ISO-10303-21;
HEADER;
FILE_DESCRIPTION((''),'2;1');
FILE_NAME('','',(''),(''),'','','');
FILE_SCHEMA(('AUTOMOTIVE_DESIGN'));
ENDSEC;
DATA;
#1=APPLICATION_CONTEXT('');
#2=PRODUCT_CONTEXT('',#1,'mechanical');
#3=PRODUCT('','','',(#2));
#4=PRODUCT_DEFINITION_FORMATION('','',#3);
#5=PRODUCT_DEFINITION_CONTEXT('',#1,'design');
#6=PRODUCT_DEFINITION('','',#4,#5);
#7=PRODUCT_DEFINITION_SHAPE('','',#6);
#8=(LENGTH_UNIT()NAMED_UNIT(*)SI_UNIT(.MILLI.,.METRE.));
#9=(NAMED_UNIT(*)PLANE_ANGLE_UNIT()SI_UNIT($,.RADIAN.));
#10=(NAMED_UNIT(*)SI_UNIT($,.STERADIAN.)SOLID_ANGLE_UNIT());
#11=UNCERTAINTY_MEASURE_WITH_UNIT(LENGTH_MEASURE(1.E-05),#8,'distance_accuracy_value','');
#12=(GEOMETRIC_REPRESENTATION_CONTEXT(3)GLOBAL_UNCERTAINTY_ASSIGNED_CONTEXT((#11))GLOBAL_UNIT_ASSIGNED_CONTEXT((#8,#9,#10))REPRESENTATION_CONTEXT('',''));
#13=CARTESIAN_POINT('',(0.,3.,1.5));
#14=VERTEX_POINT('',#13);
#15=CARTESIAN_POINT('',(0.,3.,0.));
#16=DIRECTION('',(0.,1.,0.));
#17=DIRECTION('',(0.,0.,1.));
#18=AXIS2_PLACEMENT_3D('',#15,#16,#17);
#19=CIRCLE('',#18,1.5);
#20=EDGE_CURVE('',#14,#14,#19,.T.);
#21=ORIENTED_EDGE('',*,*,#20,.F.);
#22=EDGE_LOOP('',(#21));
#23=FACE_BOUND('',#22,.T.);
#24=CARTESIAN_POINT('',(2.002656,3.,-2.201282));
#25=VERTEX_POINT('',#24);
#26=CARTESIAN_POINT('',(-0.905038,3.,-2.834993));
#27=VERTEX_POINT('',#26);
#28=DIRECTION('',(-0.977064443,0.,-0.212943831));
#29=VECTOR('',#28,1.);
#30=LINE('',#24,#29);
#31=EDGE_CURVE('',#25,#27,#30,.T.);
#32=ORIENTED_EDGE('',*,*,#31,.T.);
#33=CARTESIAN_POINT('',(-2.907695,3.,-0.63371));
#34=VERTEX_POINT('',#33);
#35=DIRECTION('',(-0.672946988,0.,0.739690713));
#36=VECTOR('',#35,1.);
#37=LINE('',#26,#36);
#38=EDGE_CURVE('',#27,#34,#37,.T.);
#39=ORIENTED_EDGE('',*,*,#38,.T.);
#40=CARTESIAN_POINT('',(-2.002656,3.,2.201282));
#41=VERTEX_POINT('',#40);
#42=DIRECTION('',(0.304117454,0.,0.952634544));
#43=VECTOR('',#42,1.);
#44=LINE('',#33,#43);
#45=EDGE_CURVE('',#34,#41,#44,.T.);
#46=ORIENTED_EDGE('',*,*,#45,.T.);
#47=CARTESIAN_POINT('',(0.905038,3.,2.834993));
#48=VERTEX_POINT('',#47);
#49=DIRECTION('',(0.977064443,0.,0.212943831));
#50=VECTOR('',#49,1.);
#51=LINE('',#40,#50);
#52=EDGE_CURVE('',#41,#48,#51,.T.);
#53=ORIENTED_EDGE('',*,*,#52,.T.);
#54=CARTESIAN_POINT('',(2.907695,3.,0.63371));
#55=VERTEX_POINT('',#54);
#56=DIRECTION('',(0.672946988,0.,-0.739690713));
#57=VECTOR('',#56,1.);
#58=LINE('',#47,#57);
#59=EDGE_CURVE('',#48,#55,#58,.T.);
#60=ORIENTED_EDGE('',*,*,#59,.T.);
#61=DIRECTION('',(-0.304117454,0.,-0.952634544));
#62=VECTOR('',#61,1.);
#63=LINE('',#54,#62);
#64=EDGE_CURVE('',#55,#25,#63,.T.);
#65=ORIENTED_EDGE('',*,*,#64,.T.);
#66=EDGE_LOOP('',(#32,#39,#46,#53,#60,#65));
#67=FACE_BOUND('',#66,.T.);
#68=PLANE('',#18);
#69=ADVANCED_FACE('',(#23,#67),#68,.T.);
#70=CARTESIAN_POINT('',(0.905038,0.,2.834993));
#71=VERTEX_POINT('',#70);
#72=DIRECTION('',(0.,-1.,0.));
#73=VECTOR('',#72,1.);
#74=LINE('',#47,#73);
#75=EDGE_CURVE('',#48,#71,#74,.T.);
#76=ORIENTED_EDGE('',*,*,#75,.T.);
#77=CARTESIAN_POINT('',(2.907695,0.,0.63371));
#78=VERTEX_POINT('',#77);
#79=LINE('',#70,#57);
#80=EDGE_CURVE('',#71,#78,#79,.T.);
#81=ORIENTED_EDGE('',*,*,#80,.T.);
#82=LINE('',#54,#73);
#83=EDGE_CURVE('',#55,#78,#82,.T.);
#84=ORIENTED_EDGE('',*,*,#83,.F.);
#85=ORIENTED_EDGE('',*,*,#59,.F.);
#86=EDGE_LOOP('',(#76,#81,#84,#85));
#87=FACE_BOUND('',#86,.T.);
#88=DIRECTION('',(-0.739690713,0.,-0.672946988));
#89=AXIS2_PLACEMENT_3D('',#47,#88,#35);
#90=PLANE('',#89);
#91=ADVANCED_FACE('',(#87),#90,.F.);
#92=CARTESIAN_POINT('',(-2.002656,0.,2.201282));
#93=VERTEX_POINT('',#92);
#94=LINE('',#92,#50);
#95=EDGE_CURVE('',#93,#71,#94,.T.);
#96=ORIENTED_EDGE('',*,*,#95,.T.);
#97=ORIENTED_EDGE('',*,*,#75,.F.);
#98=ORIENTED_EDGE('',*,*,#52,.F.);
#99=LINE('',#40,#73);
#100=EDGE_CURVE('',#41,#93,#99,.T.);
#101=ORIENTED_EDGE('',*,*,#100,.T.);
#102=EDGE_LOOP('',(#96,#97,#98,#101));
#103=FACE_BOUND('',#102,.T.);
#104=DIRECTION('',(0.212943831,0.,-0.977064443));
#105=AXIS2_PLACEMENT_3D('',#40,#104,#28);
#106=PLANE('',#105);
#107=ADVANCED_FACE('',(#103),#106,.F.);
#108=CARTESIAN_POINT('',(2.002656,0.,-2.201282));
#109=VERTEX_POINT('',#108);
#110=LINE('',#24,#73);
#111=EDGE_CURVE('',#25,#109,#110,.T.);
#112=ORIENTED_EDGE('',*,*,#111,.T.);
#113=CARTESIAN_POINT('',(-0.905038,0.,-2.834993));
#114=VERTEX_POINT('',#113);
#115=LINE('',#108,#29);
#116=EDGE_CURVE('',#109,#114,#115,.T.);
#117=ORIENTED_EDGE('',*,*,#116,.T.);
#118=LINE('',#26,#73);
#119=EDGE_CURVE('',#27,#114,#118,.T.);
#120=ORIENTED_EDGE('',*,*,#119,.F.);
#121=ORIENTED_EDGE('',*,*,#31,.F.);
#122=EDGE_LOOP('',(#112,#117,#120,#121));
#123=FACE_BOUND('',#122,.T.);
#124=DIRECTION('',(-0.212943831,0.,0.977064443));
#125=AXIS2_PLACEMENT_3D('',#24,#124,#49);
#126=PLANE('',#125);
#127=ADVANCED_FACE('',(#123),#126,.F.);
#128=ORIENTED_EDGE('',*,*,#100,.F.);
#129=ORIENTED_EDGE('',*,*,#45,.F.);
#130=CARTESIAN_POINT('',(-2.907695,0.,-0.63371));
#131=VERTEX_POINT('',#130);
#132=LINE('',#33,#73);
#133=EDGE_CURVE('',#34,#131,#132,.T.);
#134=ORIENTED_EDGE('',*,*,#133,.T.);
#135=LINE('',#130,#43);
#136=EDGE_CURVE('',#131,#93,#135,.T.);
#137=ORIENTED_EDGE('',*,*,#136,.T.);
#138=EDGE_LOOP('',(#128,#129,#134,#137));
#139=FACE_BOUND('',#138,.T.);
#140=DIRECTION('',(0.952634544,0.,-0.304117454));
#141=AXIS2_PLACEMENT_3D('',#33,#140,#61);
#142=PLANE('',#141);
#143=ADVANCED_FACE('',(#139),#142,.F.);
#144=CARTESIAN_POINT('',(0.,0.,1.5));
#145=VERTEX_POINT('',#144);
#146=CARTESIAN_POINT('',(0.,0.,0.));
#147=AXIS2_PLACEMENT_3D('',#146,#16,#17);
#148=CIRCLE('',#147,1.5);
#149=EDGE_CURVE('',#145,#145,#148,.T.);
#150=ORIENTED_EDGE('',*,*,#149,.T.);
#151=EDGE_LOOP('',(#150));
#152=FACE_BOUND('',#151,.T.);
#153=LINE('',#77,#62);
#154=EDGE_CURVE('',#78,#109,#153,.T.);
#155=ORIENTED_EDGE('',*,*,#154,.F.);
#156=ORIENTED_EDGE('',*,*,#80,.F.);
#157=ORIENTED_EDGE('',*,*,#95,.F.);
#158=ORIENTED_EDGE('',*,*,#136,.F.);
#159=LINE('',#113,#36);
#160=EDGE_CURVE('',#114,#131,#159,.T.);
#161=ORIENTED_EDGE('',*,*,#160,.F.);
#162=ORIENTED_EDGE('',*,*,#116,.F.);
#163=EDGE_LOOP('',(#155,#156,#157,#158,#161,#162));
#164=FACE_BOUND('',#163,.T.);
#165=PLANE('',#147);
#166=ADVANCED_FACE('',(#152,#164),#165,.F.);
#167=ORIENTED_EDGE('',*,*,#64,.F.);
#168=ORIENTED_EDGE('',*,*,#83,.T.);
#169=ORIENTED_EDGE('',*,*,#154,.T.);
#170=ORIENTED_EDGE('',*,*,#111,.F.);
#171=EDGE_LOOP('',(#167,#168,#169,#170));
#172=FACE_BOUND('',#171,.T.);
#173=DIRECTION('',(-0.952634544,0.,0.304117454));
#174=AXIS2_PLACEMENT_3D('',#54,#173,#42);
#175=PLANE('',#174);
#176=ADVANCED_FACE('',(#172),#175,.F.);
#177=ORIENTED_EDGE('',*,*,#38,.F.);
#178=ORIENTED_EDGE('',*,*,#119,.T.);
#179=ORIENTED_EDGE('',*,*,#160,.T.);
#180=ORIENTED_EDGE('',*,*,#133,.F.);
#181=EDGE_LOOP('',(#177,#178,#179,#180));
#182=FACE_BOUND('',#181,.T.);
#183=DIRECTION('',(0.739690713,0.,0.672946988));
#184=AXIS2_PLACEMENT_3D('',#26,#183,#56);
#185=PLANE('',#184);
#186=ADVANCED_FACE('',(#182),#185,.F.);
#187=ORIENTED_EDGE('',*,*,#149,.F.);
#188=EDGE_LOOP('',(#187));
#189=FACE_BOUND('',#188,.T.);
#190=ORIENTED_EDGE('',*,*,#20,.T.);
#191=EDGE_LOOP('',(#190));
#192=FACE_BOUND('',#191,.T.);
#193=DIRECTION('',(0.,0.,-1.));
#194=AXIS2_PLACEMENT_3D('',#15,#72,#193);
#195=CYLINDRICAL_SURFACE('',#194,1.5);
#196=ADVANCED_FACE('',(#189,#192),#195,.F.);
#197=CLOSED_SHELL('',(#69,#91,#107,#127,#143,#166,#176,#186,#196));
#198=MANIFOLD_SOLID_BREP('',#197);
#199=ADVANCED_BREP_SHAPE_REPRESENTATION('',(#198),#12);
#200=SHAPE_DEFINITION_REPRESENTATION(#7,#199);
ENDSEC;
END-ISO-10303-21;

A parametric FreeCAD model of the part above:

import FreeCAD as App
import Part
import Sketcher

V = App.Vector

doc = App.newDocument("Part")
body = doc.addObject("PartDesign::Body", "Body")

# Sketch on XZ plane
sketch1 = body.newObject("Sketcher::SketchObject", "Sketch")
sketch1.AttachmentSupport = (doc.getObject("XZ_Plane"), [""])
sketch1.MapMode = "FlatFace"
sketch1.addGeometry([
    Part.LineSegment(V(0.9, 2.8, 0), V(2.9, 0.6, 0)),  # 0
    Part.LineSegment(V(2.9, 0.6, 0), V(2, -2.2, 0)),  # 1
    Part.LineSegment(V(2, -2.2, 0), V(-0.9, -2.8, 0)),  # 2
    Part.LineSegment(V(-0.9, -2.8, 0), V(-2.9, -0.6, 0)),  # 3
    Part.LineSegment(V(-2.9, -0.6, 0), V(-2, 2.2, 0)),  # 4
    Part.LineSegment(V(-2, 2.2, 0), V(0.9, 2.8, 0)),  # 5
    Part.Circle(V(0, 0, 0), V(0, 0, 1), 1.5),  # 6
], False)
sketch1.addConstraint([
    Sketcher.Constraint("Coincident", 0, 2, 1, 1),
    Sketcher.Constraint("Coincident", 1, 2, 2, 1),
    Sketcher.Constraint("Coincident", 2, 2, 3, 1),
    Sketcher.Constraint("Coincident", 3, 2, 4, 1),
    Sketcher.Constraint("Coincident", 4, 2, 5, 1),
    Sketcher.Constraint("Coincident", 5, 2, 0, 1),
    Sketcher.Constraint("Coincident", 6, 3, -1, 1),
    Sketcher.Constraint("Symmetric", 0, 2, 3, 2, -1, 1),
    Sketcher.Constraint("Symmetric", 1, 2, 4, 2, -1, 1),
    Sketcher.Constraint("Symmetric", 2, 2, 5, 2, -1, 1),
    Sketcher.Constraint("Equal", 0, 1),
    Sketcher.Constraint("Equal", 1, 2),
    Sketcher.Constraint("Diameter", 6, 3.0),
    Sketcher.Constraint("Distance", 0, 2.97595),
    Sketcher.Constraint("DistanceY", -1, 1, 0, 2, 0.63371),
    Sketcher.Constraint("DistanceX", 2, 2, -1, 1, 0.905038),
    Sketcher.Constraint("DistanceX", 1, 2, 0, 2, 0.905038),
])
pad1 = body.newObject("PartDesign::Pad", "Pad")
pad1.Profile = sketch1
pad1.Length = 3
pad1.Reversed = True

doc.recompute()
